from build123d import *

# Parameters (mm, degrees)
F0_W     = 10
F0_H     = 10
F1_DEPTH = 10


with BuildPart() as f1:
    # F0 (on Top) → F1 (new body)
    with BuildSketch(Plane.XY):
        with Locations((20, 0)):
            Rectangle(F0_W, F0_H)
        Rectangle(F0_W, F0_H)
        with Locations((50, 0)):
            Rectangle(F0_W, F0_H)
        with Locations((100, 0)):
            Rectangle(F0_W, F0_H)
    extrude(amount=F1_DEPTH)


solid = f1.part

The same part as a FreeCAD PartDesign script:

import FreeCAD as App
import Part
import Sketcher
from FreeCAD import Vector
Q = App.Units.Quantity


def add_polygon(sketch, points):
    """Adds a closed chain of lines whose ends are joined by coincident constraints."""
    first, n = sketch.GeometryCount, len(points)
    for a, b in zip(points, points[1:] + points[:1]):
        sketch.addGeometry(Part.LineSegment(App.Vector(*a, 0), App.Vector(*b, 0)), False)
    for i in range(n):
        sketch.addConstraint(Sketcher.Constraint("Coincident", first + i, 2, first + (i + 1) % n, 1))

doc = App.newDocument("Part")
body = doc.addObject("PartDesign::Body", "Body")
body.AllowCompound = True

# Sketch on XY plane
sketch1 = body.newObject("Sketcher::SketchObject", "Sketch")
sketch1.AttachmentSupport = (doc.getObject("XY_Plane"), [""])
sketch1.MapMode = "FlatFace"
add_polygon(sketch1, [(15, 5), (15, -5), (25, -5), (25, 5)])  # lines 0-3
add_polygon(sketch1, [(-5, 5), (-5, -5), (5, -5), (5, 5)])  # lines 4-7
add_polygon(sketch1, [(45, 5), (45, -5), (55, -5), (55, 5)])  # lines 8-11
add_polygon(sketch1, [(95, 5), (95, -5), (105, -5), (105, 5)])  # lines 12-15
sketch1.addConstraint([
    Sketcher.Constraint("Vertical", 0),
    Sketcher.Constraint("Horizontal", 1),
    Sketcher.Constraint("Vertical", 2),
    Sketcher.Constraint("Horizontal", 3),
    Sketcher.Constraint("Vertical", 4),
    Sketcher.Constraint("Horizontal", 5),
    Sketcher.Constraint("Vertical", 6),
    Sketcher.Constraint("Horizontal", 7),
    Sketcher.Constraint("Vertical", 8),
    Sketcher.Constraint("Horizontal", 9),
    Sketcher.Constraint("Vertical", 10),
    Sketcher.Constraint("Horizontal", 11),
    Sketcher.Constraint("Vertical", 12),
    Sketcher.Constraint("Horizontal", 13),
    Sketcher.Constraint("Vertical", 14),
    Sketcher.Constraint("Horizontal", 15),
    Sketcher.Constraint("Symmetric", 4, 2, 6, 2, -1, 1),
    Sketcher.Constraint("Horizontal", 1, 2, 4, 2),
    Sketcher.Constraint("Horizontal", 3, 2, 6, 2),
    Sketcher.Constraint("Horizontal", 5, 2, 8, 2),
    Sketcher.Constraint("Horizontal", 7, 2, 10, 2),
    Sketcher.Constraint("Horizontal", 9, 2, 12, 2),
    Sketcher.Constraint("Horizontal", 11, 2, 14, 2),
    Sketcher.Constraint("Equal", 3, 5),
    Sketcher.Constraint("Equal", 7, 9),
    Sketcher.Constraint("Equal", 11, 13),
    Sketcher.Constraint("Equal", 15, 0),
    Sketcher.Constraint("DistanceX", 1, 1, 1, 2, Q("10 mm")),
    Sketcher.Constraint("DistanceX", -1, 1, 0, 2, Q("15 mm")),
    Sketcher.Constraint("DistanceX", -1, 1, 8, 2, Q("45 mm")),
    Sketcher.Constraint("DistanceX", -1, 1, 12, 2, Q("95 mm")),
])
pad1 = body.newObject("PartDesign::Pad", "Pad")
pad1.Profile = sketch1
pad1.Length = 10

doc.recompute()
